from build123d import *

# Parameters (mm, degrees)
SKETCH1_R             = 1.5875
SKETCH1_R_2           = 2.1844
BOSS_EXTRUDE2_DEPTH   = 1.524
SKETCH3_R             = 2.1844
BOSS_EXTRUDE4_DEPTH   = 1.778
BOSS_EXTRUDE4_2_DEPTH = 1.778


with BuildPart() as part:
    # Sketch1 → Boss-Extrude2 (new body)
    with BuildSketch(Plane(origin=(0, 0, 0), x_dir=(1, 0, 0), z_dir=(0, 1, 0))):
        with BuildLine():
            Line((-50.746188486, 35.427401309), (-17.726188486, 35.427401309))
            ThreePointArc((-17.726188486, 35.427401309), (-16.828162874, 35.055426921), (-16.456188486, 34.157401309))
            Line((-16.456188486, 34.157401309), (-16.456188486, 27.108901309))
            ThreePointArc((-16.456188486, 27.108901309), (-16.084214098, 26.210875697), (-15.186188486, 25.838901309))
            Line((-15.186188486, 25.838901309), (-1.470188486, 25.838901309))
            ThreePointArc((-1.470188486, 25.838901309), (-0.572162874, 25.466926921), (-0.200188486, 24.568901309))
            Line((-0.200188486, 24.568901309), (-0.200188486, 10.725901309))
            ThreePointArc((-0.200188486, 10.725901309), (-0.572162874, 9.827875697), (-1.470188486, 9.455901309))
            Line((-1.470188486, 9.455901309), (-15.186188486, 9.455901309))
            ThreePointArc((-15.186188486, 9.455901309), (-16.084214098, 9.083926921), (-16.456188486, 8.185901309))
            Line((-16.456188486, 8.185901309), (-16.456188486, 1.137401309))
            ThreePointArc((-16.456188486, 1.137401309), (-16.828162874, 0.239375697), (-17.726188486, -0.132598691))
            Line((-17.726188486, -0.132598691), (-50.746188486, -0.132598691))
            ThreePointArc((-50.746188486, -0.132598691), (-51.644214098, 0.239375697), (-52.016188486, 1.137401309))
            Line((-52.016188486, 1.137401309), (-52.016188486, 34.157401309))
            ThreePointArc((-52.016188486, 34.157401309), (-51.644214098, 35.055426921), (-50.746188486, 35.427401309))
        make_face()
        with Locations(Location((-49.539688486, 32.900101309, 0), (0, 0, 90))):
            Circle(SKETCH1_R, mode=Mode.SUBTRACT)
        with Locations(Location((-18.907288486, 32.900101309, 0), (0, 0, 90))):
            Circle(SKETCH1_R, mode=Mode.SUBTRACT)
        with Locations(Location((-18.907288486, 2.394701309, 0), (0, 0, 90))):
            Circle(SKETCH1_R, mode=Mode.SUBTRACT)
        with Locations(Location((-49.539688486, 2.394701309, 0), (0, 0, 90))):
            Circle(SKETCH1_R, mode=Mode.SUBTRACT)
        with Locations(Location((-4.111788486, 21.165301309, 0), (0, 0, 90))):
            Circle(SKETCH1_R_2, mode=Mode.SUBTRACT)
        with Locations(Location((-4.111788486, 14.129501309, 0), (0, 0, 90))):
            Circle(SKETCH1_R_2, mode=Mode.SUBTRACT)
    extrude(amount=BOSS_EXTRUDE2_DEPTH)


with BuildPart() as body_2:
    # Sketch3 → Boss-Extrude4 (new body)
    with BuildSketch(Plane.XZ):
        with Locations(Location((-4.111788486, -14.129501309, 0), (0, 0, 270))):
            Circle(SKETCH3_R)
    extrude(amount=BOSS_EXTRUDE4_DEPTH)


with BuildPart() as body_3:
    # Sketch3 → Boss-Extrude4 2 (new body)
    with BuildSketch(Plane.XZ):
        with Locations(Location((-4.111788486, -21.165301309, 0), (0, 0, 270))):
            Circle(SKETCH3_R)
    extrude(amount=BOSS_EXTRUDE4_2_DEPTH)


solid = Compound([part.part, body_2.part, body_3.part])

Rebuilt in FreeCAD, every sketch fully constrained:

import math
import FreeCAD as App
import Part
import Sketcher
Q = App.Units.Quantity

doc = App.newDocument("Part")
params = doc.addObject("Spreadsheet::Sheet", "Params")
for row, (alias, value) in enumerate([
    ("sketch1_radius", "0.05 in"),
    ("sketch1_diameter", "0.125 in"),
    ("sketch1_diameter2", "0.172 in"),
    ("sketch1_width", "1.3 in"),
    ("sketch1_width2", "0.54 in"),
    ("pad1_length", "0.06 in"),
    ("sketch2_diameter", "0.172 in"),
    ("pad2_length", "0.07 in"),
    ("sketch3_diameter", "0.172 in"),
    ("pad3_length", "0.07 in"),
], start=1):
    params.set(f"A{row}", alias)
    params.set(f"B{row}", "=" + value)
    params.setAlias(f"B{row}", alias)

body = doc.addObject("PartDesign::Body", "Body")

sketch1 = doc.addObject("Sketcher::SketchObject", "Sketch")
body.addObject(sketch1)
sketch1.AttachmentSupport = (doc.XZ_Plane, [""])
sketch1.MapMode = "FlatFace"
sketch1.addGeometry(Part.LineSegment(App.Vector(-17.7, -35.4, 0), App.Vector(-50.7, -35.4, 0)), False)
sketch1.addGeometry(Part.ArcOfCircle(Part.Circle(App.Vector(-50.7, -34.2, 0), App.Vector(0, 0, 1), 1.3), math.radians(180), math.radians(270)), False)
sketch1.addGeometry(Part.LineSegment(App.Vector(-52, -34.2, 0), App.Vector(-52, -1.1, 0)), False)
sketch1.addGeometry(Part.ArcOfCircle(Part.Circle(App.Vector(-50.7, -1.1, 0), App.Vector(0, 0, 1), 1.3), math.radians(90), math.radians(180)), False)
sketch1.addGeometry(Part.LineSegment(App.Vector(-50.7, 0.1, 0), App.Vector(-17.7, 0.1, 0)), False)
sketch1.addGeometry(Part.ArcOfCircle(Part.Circle(App.Vector(-17.7, -1.1, 0), App.Vector(0, 0, 1), 1.3), math.radians(0), math.radians(90)), False)
sketch1.addGeometry(Part.LineSegment(App.Vector(-16.5, -1.1, 0), App.Vector(-16.5, -8.2, 0)), False)
sketch1.addGeometry(Part.ArcOfCircle(Part.Circle(App.Vector(-15.2, -8.2, 0), App.Vector(0, 0, 1), 1.3), math.radians(180), math.radians(270)), False)
sketch1.addGeometry(Part.LineSegment(App.Vector(-15.2, -9.5, 0), App.Vector(-1.5, -9.5, 0)), False)
sketch1.addGeometry(Part.ArcOfCircle(Part.Circle(App.Vector(-1.5, -10.7, 0), App.Vector(0, 0, 1), 1.3), math.radians(0), math.radians(90)), False)
sketch1.addGeometry(Part.LineSegment(App.Vector(-0.2, -10.7, 0), App.Vector(-0.2, -24.6, 0)), False)
sketch1.addGeometry(Part.ArcOfCircle(Part.Circle(App.Vector(-1.5, -24.6, 0), App.Vector(0, 0, 1), 1.3), math.radians(-90), math.radians(0)), False)
sketch1.addGeometry(Part.LineSegment(App.Vector(-1.5, -25.8, 0), App.Vector(-15.2, -25.8, 0)), False)
sketch1.addGeometry(Part.ArcOfCircle(Part.Circle(App.Vector(-15.2, -27.1, 0), App.Vector(0, 0, 1), 1.3), math.radians(90), math.radians(180)), False)
sketch1.addGeometry(Part.LineSegment(App.Vector(-16.5, -27.1, 0), App.Vector(-16.5, -34.2, 0)), False)
sketch1.addGeometry(Part.ArcOfCircle(Part.Circle(App.Vector(-17.7, -34.2, 0), App.Vector(0, 0, 1), 1.3), math.radians(-90), math.radians(0)), False)
sketch1.addGeometry(Part.Circle(App.Vector(-18.9, -2.4, 0), App.Vector(0, 0, 1), 1.6), False)
sketch1.addGeometry(Part.Circle(App.Vector(-4.1, -14.1, 0), App.Vector(0, 0, 1), 2.2), False)
sketch1.addGeometry(Part.Circle(App.Vector(-49.5, -2.4, 0), App.Vector(0, 0, 1), 1.6), False)
sketch1.addGeometry(Part.Circle(App.Vector(-4.1, -21.2, 0), App.Vector(0, 0, 1), 2.2), False)
sketch1.addGeometry(Part.Circle(App.Vector(-18.9, -32.9, 0), App.Vector(0, 0, 1), 1.6), False)
sketch1.addGeometry(Part.Circle(App.Vector(-49.5, -32.9, 0), App.Vector(0, 0, 1), 1.6), False)
sketch1.addConstraint(Sketcher.Constraint("Tangent", 0, 2, 1, 2))
sketch1.addConstraint(Sketcher.Constraint("Tangent", 1, 1, 2, 1))
sketch1.addConstraint(Sketcher.Constraint("Tangent", 2, 2, 3, 2))
sketch1.addConstraint(Sketcher.Constraint("Tangent", 3, 1, 4, 1))
sketch1.addConstraint(Sketcher.Constraint("Tangent", 4, 2, 5, 2))
sketch1.addConstraint(Sketcher.Constraint("Tangent", 5, 1, 6, 1))
sketch1.addConstraint(Sketcher.Constraint("Tangent", 6, 2, 7, 1))
sketch1.addConstraint(Sketcher.Constraint("Tangent", 7, 2, 8, 1))
sketch1.addConstraint(Sketcher.Constraint("Tangent", 8, 2, 9, 2))
sketch1.addConstraint(Sketcher.Constraint("Tangent", 9, 1, 10, 1))
sketch1.addConstraint(Sketcher.Constraint("Tangent", 10, 2, 11, 2))
sketch1.addConstraint(Sketcher.Constraint("Tangent", 11, 1, 12, 1))
sketch1.addConstraint(Sketcher.Constraint("Tangent", 12, 2, 13, 1))
sketch1.addConstraint(Sketcher.Constraint("Tangent", 13, 2, 14, 1))
sketch1.addConstraint(Sketcher.Constraint("Tangent", 14, 2, 15, 2))
sketch1.addConstraint(Sketcher.Constraint("Tangent", 15, 1, 0, 1))
sketch1.addConstraint(Sketcher.Constraint("Horizontal", 0))
sketch1.addConstraint(Sketcher.Constraint("Vertical", 2))
sketch1.addConstraint(Sketcher.Constraint("Horizontal", 4))
sketch1.addConstraint(Sketcher.Constraint("Vertical", 6))
sketch1.addConstraint(Sketcher.Constraint("Horizontal", 8))
sketch1.addConstraint(Sketcher.Constraint("Vertical", 10))
sketch1.addConstraint(Sketcher.Constraint("Horizontal", 12))
sketch1.addConstraint(Sketcher.Constraint("Vertical", 14))
sketch1.addConstraint(Sketcher.Constraint("Equal", 1, 3))
sketch1.addConstraint(Sketcher.Constraint("Equal", 3, 5))
sketch1.addConstraint(Sketcher.Constraint("Equal", 5, 7))
sketch1.addConstraint(Sketcher.Constraint("Equal", 7, 9))
sketch1.addConstraint(Sketcher.Constraint("Equal", 9, 11))
sketch1.addConstraint(Sketcher.Constraint("Equal", 11, 13))
sketch1.addConstraint(Sketcher.Constraint("Equal", 13, 15))
sketch1.addConstraint(Sketcher.Constraint("Equal", 16, 18))
sketch1.addConstraint(Sketcher.Constraint("Equal", 17, 19))
sketch1.addConstraint(Sketcher.Constraint("Equal", 18, 20))
sketch1.addConstraint(Sketcher.Constraint("Equal", 20, 21))
sketch1.addConstraint(Sketcher.Constraint("Horizontal", 16, 3, 18, 3))
sketch1.addConstraint(Sketcher.Constraint("Horizontal", 20, 3, 21, 3))
sketch1.addConstraint(Sketcher.Constraint("Vertical", 7, 3, 13, 3))
sketch1.addConstraint(Sketcher.Constraint("Vertical", 17, 3, 19, 3))
sketch1.addConstraint(Sketcher.Constraint("Vertical", 16, 3, 20, 3))
sketch1.addConstraint(Sketcher.Constraint("Vertical", 18, 3, 21, 3))
sketch1.addConstraint(Sketcher.Constraint("Equal", 4, 2))
sketch1.addConstraint(Sketcher.Constraint("Equal", 6, 14))
sketch1.addConstraint(Sketcher.Constraint("Radius", 1, Q("0.05 in")))
sketch1.addConstraint(Sketcher.Constraint("Diameter", 16, Q("0.125 in")))
sketch1.addConstraint(Sketcher.Constraint("Diameter", 17, Q("0.172 in")))
sketch1.addConstraint(Sketcher.Constraint("DistanceX", 0, 2, 0, 1, Q("1.3 in")))
sketch1.addConstraint(Sketcher.Constraint("DistanceX", 8, 1, 8, 2, Q("0.54 in")))
sketch1.addConstraint(Sketcher.Constraint("DistanceY", 10, 2, 10, 1, Q("0.545 in")))
sketch1.addConstraint(Sketcher.Constraint("DistanceY", 7, 3, 16, 3, Q("0.228 in")))
sketch1.addConstraint(Sketcher.Constraint("DistanceX", 17, 3, 9, 3, Q("0.104 in")))
sketch1.addConstraint(Sketcher.Constraint("DistanceY", 17, 3, 9, 3, Q("0.134 in")))
sketch1.addConstraint(Sketcher.Constraint("DistanceX", 18, 3, 16, 3, Q("1.206 in")))
sketch1.addConstraint(Sketcher.Constraint("DistanceY", 11, 3, 19, 3, Q("0.134 in")))
sketch1.addConstraint(Sketcher.Constraint("DistanceY", 20, 3, 13, 3, Q("0.228 in")))
sketch1.addConstraint(Sketcher.Constraint("DistanceX", 16, 3, 5, 3, Q("0.0465 in")))
sketch1.addConstraint(Sketcher.Constraint("DistanceY", 1, 3, -1, 1, 34.157401))
sketch1.addConstraint(Sketcher.Constraint("DistanceX", 1, 3, -1, 1, 50.746188))
sketch1.setExpression("Constraints[43]", "Params.sketch1_radius")
sketch1.setExpression("Constraints[44]", "Params.sketch1_diameter")
sketch1.setExpression("Constraints[45]", "Params.sketch1_diameter2")
sketch1.setExpression("Constraints[46]", "Params.sketch1_width")
sketch1.setExpression("Constraints[47]", "Params.sketch1_width2")
pad1 = doc.addObject("PartDesign::Pad", "Pad")
body.addObject(pad1)
pad1.Profile = sketch1
pad1.setExpression("Length", "Params.pad1_length")
pad1.Reversed = True
body2 = doc.addObject("PartDesign::Body", "Body001")

sketch2 = doc.addObject("Sketcher::SketchObject", "Sketch001")
body2.addObject(sketch2)
sketch2.AttachmentSupport = (doc.getObject("XZ_Plane001"), [""])
sketch2.MapMode = "FlatFace"
sketch2.addGeometry(Part.Circle(App.Vector(-4.1, -14.1, 0), App.Vector(0, 0, 1), 2.2), False)
sketch2.addConstraint(Sketcher.Constraint("Diameter", 0, Q("0.172 in")))
sketch2.addConstraint(Sketcher.Constraint("DistanceY", 0, 3, -1, 1, 14.129501))
sketch2.addConstraint(Sketcher.Constraint("DistanceX", 0, 3, -1, 1, 4.111788))
sketch2.setExpression("Constraints[0]", "Params.sketch2_diameter")
pad2 = doc.addObject("PartDesign::Pad", "Pad001")
body2.addObject(pad2)
pad2.Profile = sketch2
pad2.setExpression("Length", "Params.pad2_length")
body3 = doc.addObject("PartDesign::Body", "Body002")

sketch3 = doc.addObject("Sketcher::SketchObject", "Sketch002")
body3.addObject(sketch3)
sketch3.AttachmentSupport = (doc.getObject("XZ_Plane002"), [""])
sketch3.MapMode = "FlatFace"
sketch3.addGeometry(Part.Circle(App.Vector(-4.1, -21.2, 0), App.Vector(0, 0, 1), 2.2), False)
sketch3.addConstraint(Sketcher.Constraint("Diameter", 0, Q("0.172 in")))
sketch3.addConstraint(Sketcher.Constraint("DistanceY", 0, 3, -1, 1, 21.165301))
sketch3.addConstraint(Sketcher.Constraint("DistanceX", 0, 3, -1, 1, 4.111788))
sketch3.setExpression("Constraints[0]", "Params.sketch3_diameter")
pad3 = doc.addObject("PartDesign::Pad", "Pad002")
body3.addObject(pad3)
pad3.Profile = sketch3
pad3.setExpression("Length", "Params.pad3_length")

doc.recompute()
